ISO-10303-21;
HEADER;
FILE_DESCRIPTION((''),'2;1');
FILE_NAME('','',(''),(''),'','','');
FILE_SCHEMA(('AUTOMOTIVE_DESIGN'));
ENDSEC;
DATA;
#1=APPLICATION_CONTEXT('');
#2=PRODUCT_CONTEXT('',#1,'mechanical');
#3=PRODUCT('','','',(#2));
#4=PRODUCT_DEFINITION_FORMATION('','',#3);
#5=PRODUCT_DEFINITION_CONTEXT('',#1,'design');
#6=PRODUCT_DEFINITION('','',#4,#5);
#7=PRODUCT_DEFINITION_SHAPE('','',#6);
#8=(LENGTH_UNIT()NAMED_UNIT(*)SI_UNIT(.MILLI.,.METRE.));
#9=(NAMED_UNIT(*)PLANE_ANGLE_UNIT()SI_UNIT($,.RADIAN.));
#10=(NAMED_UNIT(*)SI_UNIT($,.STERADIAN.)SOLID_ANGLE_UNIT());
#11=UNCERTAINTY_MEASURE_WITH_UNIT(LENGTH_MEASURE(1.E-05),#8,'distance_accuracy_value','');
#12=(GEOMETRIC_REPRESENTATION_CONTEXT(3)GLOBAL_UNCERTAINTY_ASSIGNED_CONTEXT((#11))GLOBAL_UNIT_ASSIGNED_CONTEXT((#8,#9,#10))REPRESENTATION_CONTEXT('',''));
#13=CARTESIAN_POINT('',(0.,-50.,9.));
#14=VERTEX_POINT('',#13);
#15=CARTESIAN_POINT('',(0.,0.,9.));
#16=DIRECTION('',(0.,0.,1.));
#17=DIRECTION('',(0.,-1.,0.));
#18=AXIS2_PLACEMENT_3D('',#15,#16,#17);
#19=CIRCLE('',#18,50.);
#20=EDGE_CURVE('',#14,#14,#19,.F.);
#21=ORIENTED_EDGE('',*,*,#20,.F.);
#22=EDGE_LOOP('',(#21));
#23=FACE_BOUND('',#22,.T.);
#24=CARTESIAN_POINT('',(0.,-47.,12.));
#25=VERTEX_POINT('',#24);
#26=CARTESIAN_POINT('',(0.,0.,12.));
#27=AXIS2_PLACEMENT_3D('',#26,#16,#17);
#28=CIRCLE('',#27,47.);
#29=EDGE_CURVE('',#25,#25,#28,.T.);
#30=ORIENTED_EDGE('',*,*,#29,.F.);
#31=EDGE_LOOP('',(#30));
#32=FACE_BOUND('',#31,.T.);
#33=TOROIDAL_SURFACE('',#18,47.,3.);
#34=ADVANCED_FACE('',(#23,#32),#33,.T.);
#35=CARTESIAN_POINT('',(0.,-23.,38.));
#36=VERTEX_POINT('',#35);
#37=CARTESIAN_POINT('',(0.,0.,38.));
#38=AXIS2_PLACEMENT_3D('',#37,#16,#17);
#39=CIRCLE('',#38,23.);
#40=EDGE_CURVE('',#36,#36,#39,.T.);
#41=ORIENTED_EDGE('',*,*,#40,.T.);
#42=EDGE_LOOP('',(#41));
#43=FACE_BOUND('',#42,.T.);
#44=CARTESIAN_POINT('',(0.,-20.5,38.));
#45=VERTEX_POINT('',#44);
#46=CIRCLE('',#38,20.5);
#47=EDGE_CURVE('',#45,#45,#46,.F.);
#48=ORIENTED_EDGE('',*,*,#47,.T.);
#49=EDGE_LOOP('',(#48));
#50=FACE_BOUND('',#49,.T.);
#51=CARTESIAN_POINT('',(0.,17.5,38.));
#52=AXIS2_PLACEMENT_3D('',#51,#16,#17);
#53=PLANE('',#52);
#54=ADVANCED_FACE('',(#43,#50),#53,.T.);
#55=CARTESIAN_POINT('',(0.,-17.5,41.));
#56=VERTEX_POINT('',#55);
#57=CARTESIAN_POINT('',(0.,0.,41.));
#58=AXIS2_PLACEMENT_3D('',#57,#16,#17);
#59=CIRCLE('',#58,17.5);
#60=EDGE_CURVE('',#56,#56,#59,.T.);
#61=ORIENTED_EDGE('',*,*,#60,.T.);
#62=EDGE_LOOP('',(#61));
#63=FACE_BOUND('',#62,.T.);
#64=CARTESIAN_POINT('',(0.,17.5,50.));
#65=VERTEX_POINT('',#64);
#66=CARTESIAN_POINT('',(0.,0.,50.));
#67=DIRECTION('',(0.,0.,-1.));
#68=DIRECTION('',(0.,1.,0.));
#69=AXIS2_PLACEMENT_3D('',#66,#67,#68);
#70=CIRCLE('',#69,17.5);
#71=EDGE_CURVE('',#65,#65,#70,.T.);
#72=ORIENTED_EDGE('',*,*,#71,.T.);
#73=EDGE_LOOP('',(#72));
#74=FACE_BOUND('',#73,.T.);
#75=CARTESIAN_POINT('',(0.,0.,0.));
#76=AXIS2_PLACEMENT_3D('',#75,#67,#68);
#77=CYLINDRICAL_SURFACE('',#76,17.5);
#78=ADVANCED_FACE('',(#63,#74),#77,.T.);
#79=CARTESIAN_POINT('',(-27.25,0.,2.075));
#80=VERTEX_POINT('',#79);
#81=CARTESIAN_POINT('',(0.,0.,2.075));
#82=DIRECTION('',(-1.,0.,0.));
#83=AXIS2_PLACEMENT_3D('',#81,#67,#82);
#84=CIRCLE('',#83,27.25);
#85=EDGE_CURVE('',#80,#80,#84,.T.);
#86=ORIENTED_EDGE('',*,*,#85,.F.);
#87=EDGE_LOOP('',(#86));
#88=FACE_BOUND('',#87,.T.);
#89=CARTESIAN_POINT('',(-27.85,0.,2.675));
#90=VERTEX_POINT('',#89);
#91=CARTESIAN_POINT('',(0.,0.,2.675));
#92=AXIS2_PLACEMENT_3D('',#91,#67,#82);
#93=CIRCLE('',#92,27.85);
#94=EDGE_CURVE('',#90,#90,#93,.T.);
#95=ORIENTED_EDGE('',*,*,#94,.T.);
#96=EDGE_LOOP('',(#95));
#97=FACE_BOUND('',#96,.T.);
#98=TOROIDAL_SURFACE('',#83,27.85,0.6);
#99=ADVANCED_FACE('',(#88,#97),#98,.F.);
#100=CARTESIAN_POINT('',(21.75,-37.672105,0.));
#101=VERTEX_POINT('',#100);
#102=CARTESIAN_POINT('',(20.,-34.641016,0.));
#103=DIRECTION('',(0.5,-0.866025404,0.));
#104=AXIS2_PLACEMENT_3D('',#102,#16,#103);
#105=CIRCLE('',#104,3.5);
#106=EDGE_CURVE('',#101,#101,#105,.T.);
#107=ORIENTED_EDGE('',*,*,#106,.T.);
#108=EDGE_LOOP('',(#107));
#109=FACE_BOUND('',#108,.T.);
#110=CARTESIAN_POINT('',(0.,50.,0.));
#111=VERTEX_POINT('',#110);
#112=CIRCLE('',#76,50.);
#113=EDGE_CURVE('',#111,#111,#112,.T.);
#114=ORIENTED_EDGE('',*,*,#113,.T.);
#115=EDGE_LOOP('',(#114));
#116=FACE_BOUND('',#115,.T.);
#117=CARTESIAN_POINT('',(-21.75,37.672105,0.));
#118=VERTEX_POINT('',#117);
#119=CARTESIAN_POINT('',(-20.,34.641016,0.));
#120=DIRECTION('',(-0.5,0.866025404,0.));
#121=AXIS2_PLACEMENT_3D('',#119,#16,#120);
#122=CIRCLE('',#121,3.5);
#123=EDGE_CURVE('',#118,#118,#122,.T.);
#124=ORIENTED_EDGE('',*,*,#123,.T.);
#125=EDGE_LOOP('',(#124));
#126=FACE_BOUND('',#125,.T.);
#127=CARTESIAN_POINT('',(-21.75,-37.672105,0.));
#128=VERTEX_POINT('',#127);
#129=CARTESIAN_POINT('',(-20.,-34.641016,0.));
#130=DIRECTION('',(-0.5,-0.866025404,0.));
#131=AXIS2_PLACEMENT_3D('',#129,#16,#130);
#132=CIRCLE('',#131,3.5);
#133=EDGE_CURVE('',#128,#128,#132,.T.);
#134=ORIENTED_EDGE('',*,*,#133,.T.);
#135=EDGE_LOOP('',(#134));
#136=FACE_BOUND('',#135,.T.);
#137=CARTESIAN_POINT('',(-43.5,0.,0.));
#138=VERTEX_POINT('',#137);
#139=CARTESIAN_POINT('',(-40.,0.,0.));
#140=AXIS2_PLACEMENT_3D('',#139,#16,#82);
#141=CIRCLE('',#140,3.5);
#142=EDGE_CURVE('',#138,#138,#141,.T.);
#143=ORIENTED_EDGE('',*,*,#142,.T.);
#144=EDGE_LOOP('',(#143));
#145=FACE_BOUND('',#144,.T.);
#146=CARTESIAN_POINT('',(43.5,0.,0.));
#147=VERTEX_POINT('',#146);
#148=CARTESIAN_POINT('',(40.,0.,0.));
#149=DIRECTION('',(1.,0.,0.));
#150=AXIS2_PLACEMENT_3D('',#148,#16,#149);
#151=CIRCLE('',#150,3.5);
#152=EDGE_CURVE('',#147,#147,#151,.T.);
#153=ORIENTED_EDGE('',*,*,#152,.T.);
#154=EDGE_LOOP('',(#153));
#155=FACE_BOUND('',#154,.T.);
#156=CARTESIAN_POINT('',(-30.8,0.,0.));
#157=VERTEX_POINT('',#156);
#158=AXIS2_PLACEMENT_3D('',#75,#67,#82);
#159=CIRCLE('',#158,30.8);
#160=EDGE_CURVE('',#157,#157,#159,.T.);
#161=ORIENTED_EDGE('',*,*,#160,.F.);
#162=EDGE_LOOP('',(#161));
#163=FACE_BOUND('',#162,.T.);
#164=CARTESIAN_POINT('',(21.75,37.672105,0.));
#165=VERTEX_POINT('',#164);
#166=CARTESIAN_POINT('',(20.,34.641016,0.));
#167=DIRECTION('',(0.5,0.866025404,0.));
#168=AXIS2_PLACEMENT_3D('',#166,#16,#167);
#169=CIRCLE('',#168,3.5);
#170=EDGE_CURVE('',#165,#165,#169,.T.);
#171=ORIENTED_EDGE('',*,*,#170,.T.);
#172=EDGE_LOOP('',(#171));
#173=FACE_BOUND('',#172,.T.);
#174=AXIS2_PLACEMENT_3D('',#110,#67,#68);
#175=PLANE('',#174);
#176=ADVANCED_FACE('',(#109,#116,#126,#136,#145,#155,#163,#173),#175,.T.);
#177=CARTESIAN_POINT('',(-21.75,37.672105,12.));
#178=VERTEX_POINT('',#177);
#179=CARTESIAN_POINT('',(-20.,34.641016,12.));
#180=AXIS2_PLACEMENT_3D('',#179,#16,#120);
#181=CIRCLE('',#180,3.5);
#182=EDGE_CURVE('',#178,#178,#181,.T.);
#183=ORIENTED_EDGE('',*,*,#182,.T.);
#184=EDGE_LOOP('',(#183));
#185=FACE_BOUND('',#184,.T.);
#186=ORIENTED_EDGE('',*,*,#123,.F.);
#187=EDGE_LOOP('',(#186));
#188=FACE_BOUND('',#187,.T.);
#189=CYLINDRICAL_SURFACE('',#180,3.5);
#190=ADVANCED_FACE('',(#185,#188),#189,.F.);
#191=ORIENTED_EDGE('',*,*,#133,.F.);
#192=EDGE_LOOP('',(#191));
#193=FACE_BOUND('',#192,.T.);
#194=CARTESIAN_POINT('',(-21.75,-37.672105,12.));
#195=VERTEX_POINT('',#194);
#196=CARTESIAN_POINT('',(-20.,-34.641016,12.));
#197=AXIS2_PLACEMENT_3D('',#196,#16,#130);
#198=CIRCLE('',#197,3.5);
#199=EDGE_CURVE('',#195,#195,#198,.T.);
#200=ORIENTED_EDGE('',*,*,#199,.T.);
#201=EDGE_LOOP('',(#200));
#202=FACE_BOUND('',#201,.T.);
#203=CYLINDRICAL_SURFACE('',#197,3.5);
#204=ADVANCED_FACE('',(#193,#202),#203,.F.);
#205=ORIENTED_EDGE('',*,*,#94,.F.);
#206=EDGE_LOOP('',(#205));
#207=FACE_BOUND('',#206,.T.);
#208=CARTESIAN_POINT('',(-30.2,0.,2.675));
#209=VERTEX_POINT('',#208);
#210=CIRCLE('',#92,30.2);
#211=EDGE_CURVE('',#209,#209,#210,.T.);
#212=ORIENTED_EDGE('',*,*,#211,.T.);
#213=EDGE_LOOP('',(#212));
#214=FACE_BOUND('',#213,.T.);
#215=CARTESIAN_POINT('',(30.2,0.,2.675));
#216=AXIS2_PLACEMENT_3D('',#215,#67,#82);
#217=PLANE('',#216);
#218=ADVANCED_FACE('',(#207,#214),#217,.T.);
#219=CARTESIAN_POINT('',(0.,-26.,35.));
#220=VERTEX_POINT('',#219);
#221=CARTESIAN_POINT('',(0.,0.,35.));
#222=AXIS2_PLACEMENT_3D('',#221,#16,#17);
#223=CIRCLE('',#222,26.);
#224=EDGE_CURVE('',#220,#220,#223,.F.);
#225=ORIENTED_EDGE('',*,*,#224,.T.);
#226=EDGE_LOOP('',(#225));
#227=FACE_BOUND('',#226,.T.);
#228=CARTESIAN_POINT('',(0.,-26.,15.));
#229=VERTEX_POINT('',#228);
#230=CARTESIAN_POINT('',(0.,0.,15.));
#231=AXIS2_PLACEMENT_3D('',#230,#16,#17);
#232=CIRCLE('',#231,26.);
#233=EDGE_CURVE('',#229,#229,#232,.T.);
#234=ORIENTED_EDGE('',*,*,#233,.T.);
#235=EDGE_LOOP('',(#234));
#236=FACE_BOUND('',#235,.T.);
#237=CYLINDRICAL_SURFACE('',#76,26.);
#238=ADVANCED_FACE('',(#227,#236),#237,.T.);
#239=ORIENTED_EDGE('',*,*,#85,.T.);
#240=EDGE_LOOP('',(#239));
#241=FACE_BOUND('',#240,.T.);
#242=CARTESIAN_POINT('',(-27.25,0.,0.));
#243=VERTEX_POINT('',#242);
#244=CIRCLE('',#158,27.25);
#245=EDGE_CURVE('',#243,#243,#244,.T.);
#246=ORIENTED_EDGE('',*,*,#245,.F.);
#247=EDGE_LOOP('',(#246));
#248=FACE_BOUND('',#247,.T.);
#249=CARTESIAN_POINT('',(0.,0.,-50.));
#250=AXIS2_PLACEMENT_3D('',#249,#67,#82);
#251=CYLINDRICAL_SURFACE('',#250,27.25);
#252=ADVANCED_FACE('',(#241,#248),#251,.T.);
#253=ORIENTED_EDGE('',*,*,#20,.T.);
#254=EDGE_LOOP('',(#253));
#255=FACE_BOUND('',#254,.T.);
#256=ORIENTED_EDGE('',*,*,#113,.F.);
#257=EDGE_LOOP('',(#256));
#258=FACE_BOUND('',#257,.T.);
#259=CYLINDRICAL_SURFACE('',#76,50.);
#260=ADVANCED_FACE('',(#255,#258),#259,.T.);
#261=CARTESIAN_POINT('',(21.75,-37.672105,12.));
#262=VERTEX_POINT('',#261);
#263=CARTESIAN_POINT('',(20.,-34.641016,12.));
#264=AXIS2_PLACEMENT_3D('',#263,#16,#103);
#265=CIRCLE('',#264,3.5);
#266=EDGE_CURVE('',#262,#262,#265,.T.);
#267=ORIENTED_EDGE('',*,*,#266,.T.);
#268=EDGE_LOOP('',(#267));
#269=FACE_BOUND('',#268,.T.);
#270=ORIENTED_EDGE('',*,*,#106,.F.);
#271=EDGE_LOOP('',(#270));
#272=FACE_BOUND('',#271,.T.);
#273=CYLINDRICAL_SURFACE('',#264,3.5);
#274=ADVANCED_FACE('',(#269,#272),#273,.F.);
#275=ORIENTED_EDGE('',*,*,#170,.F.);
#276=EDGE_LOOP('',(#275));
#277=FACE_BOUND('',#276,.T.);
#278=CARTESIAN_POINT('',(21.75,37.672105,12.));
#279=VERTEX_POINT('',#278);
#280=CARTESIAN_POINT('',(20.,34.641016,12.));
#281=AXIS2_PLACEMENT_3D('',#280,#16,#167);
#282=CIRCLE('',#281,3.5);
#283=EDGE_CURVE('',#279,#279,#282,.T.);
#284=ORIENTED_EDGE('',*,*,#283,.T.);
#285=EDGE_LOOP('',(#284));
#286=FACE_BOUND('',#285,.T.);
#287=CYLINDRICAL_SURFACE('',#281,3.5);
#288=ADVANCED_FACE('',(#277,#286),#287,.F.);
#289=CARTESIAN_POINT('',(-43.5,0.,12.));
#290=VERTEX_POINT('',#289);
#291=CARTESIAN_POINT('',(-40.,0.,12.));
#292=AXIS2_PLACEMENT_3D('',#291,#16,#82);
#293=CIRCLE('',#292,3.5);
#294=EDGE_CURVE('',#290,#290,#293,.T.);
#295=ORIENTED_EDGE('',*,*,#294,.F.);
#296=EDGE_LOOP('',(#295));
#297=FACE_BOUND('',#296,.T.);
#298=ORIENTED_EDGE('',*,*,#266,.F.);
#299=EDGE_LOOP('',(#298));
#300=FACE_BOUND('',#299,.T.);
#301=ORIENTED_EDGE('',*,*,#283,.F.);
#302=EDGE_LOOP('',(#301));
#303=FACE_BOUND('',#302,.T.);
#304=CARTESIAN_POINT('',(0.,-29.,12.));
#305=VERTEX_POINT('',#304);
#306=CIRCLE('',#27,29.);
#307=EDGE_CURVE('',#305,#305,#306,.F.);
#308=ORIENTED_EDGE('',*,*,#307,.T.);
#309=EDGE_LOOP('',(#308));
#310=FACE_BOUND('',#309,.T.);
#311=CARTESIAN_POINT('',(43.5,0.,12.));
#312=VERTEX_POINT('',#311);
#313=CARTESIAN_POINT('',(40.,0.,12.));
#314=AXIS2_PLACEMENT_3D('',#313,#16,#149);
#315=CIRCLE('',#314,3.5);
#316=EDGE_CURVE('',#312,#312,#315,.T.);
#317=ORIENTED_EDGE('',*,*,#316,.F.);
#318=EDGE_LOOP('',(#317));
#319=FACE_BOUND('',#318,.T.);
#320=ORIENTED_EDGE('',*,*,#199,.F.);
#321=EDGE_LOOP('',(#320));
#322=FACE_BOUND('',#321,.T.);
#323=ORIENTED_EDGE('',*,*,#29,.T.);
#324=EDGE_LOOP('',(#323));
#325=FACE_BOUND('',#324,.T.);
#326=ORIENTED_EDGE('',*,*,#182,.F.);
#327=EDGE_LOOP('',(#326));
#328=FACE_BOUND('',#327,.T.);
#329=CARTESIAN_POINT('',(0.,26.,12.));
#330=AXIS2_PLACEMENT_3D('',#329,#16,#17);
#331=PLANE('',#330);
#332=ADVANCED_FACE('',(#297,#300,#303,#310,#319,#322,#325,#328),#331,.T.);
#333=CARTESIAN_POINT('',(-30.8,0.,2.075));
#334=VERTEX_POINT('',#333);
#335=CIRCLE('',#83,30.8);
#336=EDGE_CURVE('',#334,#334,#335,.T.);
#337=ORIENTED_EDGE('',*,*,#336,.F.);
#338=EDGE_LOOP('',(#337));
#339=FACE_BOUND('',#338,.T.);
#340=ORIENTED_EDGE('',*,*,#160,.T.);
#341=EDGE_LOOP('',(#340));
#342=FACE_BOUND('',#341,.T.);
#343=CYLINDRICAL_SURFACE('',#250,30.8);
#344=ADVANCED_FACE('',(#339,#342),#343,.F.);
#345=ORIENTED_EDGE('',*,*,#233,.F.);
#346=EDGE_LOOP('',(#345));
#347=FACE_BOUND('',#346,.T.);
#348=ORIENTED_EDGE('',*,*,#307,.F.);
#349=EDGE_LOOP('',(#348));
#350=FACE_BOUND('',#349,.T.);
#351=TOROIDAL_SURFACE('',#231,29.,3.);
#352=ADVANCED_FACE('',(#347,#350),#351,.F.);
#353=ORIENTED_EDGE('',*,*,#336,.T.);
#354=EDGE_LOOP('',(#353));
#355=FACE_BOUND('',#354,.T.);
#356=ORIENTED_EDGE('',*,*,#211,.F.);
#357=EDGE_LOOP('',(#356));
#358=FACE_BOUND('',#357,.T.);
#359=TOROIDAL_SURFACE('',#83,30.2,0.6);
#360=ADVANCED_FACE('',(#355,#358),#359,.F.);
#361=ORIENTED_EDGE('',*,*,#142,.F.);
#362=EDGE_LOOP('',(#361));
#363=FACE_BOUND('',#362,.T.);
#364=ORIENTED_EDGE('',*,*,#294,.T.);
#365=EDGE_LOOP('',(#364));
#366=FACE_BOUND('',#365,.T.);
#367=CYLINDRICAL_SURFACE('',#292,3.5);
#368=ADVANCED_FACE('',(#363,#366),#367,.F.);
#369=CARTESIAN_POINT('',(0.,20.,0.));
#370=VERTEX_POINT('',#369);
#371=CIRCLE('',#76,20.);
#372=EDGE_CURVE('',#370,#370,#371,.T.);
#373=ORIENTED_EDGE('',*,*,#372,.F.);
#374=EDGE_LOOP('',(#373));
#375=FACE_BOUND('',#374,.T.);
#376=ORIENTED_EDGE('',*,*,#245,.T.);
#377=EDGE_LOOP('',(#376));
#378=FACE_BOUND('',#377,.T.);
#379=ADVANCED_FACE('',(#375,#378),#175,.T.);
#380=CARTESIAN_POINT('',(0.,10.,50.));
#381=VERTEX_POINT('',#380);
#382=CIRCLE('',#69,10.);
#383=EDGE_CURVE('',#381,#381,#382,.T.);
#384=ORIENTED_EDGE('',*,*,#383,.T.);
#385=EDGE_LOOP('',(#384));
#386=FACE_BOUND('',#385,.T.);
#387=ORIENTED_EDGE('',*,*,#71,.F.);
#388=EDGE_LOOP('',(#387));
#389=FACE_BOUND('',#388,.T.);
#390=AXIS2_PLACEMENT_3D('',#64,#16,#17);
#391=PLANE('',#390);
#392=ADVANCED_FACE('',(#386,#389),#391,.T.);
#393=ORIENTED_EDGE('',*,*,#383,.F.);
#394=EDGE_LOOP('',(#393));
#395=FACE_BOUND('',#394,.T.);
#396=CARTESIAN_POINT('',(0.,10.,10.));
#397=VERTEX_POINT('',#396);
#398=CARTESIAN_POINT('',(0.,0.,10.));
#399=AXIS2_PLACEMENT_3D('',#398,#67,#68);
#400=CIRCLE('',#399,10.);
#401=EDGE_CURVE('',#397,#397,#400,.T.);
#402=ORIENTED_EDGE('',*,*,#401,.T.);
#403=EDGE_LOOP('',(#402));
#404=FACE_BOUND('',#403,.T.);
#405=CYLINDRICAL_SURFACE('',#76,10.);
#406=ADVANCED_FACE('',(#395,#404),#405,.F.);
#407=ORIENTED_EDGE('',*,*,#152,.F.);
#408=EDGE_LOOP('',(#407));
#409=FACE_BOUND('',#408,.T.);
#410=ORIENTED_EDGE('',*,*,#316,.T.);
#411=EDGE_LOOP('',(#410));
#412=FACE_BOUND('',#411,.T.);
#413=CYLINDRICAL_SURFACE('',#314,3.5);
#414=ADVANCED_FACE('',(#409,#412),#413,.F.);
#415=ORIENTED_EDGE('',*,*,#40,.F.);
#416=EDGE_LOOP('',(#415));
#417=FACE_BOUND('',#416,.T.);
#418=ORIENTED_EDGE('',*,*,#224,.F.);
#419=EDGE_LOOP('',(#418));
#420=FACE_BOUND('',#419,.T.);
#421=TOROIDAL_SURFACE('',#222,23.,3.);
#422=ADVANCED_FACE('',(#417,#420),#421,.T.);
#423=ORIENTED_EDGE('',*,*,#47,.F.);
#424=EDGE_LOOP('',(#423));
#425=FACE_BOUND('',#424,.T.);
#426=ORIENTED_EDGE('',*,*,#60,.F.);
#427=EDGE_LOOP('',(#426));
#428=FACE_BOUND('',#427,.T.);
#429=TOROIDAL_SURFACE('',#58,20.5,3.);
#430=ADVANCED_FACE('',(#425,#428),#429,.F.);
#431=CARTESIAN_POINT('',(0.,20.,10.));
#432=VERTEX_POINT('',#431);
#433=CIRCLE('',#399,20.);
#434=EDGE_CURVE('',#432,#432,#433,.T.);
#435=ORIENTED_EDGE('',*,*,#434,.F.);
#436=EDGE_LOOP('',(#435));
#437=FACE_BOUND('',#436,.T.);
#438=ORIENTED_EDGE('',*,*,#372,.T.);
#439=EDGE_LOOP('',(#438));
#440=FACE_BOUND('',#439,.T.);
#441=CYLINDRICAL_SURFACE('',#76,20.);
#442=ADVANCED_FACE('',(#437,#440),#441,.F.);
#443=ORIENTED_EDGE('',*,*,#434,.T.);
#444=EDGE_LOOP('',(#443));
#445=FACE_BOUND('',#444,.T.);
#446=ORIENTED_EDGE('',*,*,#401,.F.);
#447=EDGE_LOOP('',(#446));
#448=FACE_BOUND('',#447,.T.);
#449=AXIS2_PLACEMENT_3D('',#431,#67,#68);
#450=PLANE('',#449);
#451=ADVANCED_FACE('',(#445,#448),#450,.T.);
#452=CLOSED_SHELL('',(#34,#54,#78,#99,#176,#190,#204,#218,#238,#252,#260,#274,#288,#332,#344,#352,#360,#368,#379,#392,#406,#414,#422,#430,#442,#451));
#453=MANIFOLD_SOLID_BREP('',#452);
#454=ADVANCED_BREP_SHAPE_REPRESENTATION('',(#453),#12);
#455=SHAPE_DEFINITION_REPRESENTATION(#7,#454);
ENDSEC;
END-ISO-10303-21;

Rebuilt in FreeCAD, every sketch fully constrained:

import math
import FreeCAD as App
import Part
import Sketcher

V = App.Vector


def edges_at(feature, points):
    """Names of the edges that pass closest to the given points."""
    edges = feature.Shape.Edges
    near = lambda p: min(range(len(edges)), key=lambda i: edges[i].distToShape(Part.Vertex(*p))[0])
    return sorted({f"Edge{near(p) + 1}" for p in points})

doc = App.newDocument("Part")
body = doc.addObject("PartDesign::Body", "Body")

sketch1 = body.newObject("Sketcher::SketchObject", "Sketch")
sketch1.AttachmentSupport = (doc.getObject("YZ_Plane"), [""])
sketch1.MapMode = "FlatFace"
sketch1.addGeometry([
    Part.LineSegment(V(17.5, 50, 0), V(10, 50, 0)),
    Part.LineSegment(V(10, 50, 0), V(10, 10, 0)),
    Part.LineSegment(V(10, 10, 0), V(20, 10, 0)),
    Part.LineSegment(V(20, 10, 0), V(20, 0, 0)),
    Part.LineSegment(V(20, 0, 0), V(50, 0, 0)),
    Part.LineSegment(V(50, 0, 0), V(50, 12, 0)),
    Part.LineSegment(V(50, 12, 0), V(26, 12, 0)),
    Part.LineSegment(V(26, 12, 0), V(26, 38, 0)),
    Part.LineSegment(V(26, 38, 0), V(17.5, 38, 0)),
    Part.LineSegment(V(17.5, 38, 0), V(17.5, 50, 0)),
], False)
sketch1.addConstraint([
    Sketcher.Constraint("Coincident", 0, 2, 1, 1),
    Sketcher.Constraint("Coincident", 1, 2, 2, 1),
    Sketcher.Constraint("Coincident", 2, 2, 3, 1),
    Sketcher.Constraint("Coincident", 3, 2, 4, 1),
    Sketcher.Constraint("Coincident", 4, 2, 5, 1),
    Sketcher.Constraint("Coincident", 5, 2, 6, 1),
    Sketcher.Constraint("Coincident", 6, 2, 7, 1),
    Sketcher.Constraint("Coincident", 7, 2, 8, 1),
    Sketcher.Constraint("Coincident", 8, 2, 9, 1),
    Sketcher.Constraint("Coincident", 9, 2, 0, 1),
    Sketcher.Constraint("Horizontal", 0),
    Sketcher.Constraint("Vertical", 1),
    Sketcher.Constraint("Horizontal", 2),
    Sketcher.Constraint("Vertical", 3),
    Sketcher.Constraint("Horizontal", 4),
    Sketcher.Constraint("Vertical", 5),
    Sketcher.Constraint("Horizontal", 6),
    Sketcher.Constraint("Vertical", 7),
    Sketcher.Constraint("Horizontal", 8),
    Sketcher.Constraint("Vertical", 9),
    Sketcher.Constraint("PointOnObject", 3, 2, -1),
    Sketcher.Constraint("Equal", 2, 3),
    Sketcher.Constraint("Equal", 5, 9),
    Sketcher.Constraint("DistanceX", 2, 1, 2, 2, 10.0),
    Sketcher.Constraint("DistanceX", 4, 1, 4, 2, 30.0),
    Sketcher.Constraint("DistanceX", 6, 2, 6, 1, 24.0),
    Sketcher.Constraint("DistanceY", 1, 2, 1, 1, 40.0),
    Sketcher.Constraint("DistanceY", 5, 1, 5, 2, 12.0),
    Sketcher.Constraint("DistanceX", 0, 2, 0, 1, 7.5),
    Sketcher.Constraint("DistanceX", -1, 1, 0, 2, 10.0),
])
revolution = body.newObject("PartDesign::Revolution", "Revolution")
revolution.Profile = sketch1
revolution.ReferenceAxis = (sketch1, ["V_Axis"])
revolution.Angle = 360

sketch2 = body.newObject("Sketcher::SketchObject", "Sketch001")
sketch2.AttachmentSupport = (doc.getObject("XY_Plane"), [""])
sketch2.MapMode = "FlatFace"
sketch2.AttachmentOffset = App.Placement(V(0, 0, 12), App.Rotation())
sketch2.addGeometry(Part.Circle(V(40, 0, 0), V(0, 0, 1), 3.5), False)
sketch2.addConstraint([
    Sketcher.Constraint("PointOnObject", 0, 3, -1),
    Sketcher.Constraint("Diameter", 0, 7.0),
    Sketcher.Constraint("DistanceX", -1, 1, 0, 3, 40.0),
])
doc.recompute()
hole = body.newObject("PartDesign::Hole", "Hole")
hole.Profile = sketch2
hole.ThreadType = "None"
hole.Diameter = 7
hole.DepthType = "ThroughAll"
doc.recompute()

polarpattern = body.newObject("PartDesign::PolarPattern", "PolarPattern")
polarpattern.Originals = [hole]
polarpattern.Axis = (doc.getObject("Z_Axis"), [""])
polarpattern.Angle = 360
polarpattern.Occurrences = 6
body.Tip = polarpattern
doc.recompute()

fillet = body.newObject("PartDesign::Fillet", "Fillet")
fillet.Base = (polarpattern, edges_at(polarpattern, [
    (0, -17.5, 38),
    (0, -26, 38),
    (0, -26, 12),
    (0, -50, 12),
]))
fillet.Radius = 3

sketch3 = body.newObject("Sketcher::SketchObject", "Sketch002")
sketch3.AttachmentSupport = (doc.getObject("XZ_Plane"), [""])
sketch3.MapMode = "FlatFace"
sketch3.addGeometry([
    Part.LineSegment(V(27.25, 0, 0), V(27.25, 2.075, 0)),
    Part.ArcOfCircle(Part.Circle(V(27.85, 2.075, 0), V(0, 0, 1), 0.6), math.radians(90), math.radians(180)),
    Part.LineSegment(V(27.85, 2.675, 0), V(30.2, 2.675, 0)),
    Part.ArcOfCircle(Part.Circle(V(30.2, 2.075, 0), V(0, 0, 1), 0.6), math.radians(0), math.radians(90)),
    Part.LineSegment(V(30.8, 2.075, 0), V(30.8, 0, 0)),
    Part.LineSegment(V(30.8, 0, 0), V(27.25, 0, 0)),
], False)
sketch3.addConstraint([
    Sketcher.Constraint("Tangent", 0, 2, 1, 2),
    Sketcher.Constraint("Tangent", 1, 1, 2, 1),
    Sketcher.Constraint("Tangent", 2, 2, 3, 2),
    Sketcher.Constraint("Tangent", 3, 1, 4, 1),
    Sketcher.Constraint("Coincident", 4, 2, 5, 1),
    Sketcher.Constraint("Coincident", 5, 2, 0, 1),
    Sketcher.Constraint("Vertical", 0),
    Sketcher.Constraint("Horizontal", 2),
    Sketcher.Constraint("Vertical", 4),
    Sketcher.Constraint("Horizontal", 5),
    Sketcher.Constraint("Equal", 1, 3),
    Sketcher.Constraint("PointOnObject", 4, 2, -1),
    Sketcher.Constraint("Radius", 1, 0.6),
    Sketcher.Constraint("DistanceX", 2, 1, 2, 2, 2.35),
    Sketcher.Constraint("DistanceX", -1, 1, 3, 3, 30.2),
    Sketcher.Constraint("DistanceY", 0, 1, 0, 2, 2.075),
])
groove = body.newObject("PartDesign::Groove", "Groove")
groove.Profile = sketch3
groove.ReferenceAxis = (sketch3, ["V_Axis"])
groove.Angle = 360

doc.recompute()
